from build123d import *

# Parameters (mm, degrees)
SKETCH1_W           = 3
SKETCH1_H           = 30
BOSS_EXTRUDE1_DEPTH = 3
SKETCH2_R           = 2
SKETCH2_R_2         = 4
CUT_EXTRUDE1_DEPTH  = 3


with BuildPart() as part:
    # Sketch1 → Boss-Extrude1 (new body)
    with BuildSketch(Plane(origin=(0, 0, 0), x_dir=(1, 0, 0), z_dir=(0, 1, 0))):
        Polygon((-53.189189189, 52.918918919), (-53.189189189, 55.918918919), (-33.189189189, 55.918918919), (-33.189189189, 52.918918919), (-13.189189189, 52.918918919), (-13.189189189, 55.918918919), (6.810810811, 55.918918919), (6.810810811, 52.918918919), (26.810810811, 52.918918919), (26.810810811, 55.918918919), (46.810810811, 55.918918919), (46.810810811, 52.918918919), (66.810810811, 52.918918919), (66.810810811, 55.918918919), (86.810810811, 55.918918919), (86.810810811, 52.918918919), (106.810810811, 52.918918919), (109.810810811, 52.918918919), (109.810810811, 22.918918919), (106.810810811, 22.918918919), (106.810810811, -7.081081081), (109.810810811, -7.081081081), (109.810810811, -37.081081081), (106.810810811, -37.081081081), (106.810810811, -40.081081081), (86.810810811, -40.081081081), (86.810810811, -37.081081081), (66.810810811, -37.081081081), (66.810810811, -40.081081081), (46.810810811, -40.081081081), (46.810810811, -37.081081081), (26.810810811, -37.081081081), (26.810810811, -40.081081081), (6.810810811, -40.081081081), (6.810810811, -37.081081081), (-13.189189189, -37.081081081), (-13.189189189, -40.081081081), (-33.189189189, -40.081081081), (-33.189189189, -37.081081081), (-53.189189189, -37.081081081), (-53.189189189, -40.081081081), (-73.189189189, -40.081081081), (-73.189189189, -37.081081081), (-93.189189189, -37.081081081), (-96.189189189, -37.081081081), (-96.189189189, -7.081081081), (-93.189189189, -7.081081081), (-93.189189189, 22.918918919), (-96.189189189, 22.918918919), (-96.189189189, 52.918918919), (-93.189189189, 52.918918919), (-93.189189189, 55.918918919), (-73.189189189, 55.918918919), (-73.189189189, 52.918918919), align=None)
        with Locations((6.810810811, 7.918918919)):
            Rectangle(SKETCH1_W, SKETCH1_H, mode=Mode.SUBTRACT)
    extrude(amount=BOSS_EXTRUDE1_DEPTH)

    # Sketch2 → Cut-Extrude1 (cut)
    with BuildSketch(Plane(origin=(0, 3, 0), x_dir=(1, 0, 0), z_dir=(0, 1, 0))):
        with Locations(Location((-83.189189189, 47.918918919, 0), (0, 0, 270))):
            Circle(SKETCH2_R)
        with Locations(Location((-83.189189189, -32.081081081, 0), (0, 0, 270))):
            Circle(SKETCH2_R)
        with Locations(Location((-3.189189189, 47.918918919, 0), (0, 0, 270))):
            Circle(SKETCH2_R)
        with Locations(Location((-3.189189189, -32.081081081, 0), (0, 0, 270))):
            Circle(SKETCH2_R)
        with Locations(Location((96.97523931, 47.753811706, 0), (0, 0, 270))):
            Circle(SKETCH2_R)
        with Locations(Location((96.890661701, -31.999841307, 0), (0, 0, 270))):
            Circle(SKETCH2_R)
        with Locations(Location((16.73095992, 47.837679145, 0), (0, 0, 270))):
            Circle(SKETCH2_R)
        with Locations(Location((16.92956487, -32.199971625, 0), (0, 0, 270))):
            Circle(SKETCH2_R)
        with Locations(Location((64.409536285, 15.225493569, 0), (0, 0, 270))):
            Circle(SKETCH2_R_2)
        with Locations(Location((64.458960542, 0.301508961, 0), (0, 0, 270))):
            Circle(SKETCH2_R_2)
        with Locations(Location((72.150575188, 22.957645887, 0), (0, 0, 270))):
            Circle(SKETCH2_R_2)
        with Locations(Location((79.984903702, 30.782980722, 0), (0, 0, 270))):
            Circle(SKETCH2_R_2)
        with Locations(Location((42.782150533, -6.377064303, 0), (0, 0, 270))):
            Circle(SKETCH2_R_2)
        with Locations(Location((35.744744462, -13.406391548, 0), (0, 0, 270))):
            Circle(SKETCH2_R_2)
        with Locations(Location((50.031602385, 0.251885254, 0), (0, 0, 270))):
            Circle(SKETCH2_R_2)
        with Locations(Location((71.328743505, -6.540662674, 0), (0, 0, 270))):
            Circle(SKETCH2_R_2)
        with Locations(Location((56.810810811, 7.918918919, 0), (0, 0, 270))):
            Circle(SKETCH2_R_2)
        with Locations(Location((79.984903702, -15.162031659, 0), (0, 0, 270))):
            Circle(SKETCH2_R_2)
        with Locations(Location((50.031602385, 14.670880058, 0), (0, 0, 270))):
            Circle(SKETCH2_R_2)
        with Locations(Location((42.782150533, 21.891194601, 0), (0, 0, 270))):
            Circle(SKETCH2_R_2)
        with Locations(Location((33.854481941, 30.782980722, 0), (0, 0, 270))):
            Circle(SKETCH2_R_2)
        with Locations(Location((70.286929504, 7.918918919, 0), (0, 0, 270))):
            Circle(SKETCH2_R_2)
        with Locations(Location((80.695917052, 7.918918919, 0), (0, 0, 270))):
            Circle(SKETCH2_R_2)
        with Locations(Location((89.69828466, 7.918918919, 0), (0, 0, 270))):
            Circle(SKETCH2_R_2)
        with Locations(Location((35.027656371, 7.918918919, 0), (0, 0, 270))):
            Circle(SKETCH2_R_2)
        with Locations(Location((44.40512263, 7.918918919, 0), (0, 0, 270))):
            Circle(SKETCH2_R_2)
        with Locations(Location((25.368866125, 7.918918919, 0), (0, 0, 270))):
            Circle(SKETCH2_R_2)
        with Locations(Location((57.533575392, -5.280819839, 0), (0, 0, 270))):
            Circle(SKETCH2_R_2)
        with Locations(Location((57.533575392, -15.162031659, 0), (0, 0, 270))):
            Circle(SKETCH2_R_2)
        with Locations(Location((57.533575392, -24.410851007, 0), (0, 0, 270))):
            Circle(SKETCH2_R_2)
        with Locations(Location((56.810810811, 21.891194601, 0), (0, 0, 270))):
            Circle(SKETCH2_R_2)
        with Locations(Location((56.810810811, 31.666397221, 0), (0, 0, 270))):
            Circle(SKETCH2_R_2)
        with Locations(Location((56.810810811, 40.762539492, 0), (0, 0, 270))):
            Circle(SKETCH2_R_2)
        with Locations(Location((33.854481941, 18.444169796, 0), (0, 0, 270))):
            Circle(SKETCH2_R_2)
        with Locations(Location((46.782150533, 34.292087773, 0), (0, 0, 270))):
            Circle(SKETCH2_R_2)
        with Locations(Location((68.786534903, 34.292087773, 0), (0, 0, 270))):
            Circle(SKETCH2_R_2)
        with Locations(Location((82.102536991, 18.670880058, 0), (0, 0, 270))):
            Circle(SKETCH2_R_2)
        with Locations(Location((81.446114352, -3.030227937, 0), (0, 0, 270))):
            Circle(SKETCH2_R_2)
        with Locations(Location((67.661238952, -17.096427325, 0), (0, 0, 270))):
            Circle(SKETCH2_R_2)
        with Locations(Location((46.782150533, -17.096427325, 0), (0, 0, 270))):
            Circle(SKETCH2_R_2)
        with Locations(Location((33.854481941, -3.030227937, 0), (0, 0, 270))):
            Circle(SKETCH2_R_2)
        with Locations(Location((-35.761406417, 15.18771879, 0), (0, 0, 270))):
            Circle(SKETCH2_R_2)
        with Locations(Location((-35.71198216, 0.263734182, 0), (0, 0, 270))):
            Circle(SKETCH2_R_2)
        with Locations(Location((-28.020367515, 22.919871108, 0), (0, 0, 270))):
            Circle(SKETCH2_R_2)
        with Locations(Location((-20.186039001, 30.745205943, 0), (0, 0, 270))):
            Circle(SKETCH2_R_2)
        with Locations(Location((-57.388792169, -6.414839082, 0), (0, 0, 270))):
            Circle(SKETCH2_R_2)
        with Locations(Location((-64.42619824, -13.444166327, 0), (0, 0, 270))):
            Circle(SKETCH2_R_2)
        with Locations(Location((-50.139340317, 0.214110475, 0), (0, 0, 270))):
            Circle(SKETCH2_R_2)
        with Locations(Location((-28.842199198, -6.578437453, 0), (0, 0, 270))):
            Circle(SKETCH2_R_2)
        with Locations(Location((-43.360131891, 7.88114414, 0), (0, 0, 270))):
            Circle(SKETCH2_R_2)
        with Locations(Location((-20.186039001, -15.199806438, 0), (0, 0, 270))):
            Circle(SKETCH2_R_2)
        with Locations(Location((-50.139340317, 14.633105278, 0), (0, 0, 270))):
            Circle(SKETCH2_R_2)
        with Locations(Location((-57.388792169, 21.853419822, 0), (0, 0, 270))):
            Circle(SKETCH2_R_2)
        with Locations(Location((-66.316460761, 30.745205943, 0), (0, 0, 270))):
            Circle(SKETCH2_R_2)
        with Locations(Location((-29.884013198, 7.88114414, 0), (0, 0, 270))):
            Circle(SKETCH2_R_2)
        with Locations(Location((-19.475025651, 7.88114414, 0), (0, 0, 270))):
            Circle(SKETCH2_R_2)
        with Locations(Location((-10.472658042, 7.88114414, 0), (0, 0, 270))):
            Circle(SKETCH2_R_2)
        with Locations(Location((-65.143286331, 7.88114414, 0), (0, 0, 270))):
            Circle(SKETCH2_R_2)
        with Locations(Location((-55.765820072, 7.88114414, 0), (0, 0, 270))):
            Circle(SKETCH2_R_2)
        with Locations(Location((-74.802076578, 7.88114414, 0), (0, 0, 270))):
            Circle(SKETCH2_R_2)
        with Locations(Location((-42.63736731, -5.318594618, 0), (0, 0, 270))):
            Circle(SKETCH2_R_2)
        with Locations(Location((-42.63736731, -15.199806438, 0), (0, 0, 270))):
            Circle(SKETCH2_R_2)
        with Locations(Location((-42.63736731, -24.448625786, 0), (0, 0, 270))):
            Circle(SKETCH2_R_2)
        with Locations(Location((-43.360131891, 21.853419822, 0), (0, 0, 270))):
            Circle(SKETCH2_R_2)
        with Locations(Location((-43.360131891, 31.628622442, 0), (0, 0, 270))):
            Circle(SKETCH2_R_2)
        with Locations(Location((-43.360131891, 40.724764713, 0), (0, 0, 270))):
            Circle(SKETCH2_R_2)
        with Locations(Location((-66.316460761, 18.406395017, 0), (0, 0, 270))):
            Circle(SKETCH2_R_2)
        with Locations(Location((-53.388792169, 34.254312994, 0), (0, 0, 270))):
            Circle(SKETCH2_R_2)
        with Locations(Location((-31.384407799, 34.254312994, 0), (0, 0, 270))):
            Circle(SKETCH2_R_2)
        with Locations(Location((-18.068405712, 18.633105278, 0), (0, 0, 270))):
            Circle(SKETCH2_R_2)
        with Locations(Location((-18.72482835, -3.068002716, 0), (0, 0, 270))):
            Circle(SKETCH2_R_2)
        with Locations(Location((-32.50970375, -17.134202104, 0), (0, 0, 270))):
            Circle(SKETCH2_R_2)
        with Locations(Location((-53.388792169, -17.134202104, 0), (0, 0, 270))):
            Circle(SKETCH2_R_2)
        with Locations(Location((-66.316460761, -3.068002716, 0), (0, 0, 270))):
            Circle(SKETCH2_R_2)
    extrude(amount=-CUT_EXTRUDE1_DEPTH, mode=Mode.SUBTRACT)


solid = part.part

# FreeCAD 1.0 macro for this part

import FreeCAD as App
import Part
import Sketcher


def add_polygon(sketch, points):
    """Adds a closed chain of lines whose ends are joined by coincident constraints."""
    first, n = sketch.GeometryCount, len(points)
    for a, b in zip(points, points[1:] + points[:1]):
        sketch.addGeometry(Part.LineSegment(App.Vector(*a, 0), App.Vector(*b, 0)), False)
    for i in range(n):
        sketch.addConstraint(Sketcher.Constraint("Coincident", first + i, 2, first + (i + 1) % n, 1))

doc = App.newDocument("Part")
body = doc.addObject("PartDesign::Body", "Body")

# Sketch on XZ plane
sketch1 = body.newObject("Sketcher::SketchObject", "Sketch")
sketch1.AttachmentSupport = (doc.getObject("XZ_Plane"), [""])
sketch1.MapMode = "FlatFace"
add_polygon(sketch1, [(-53.2, -55.9), (-53.2, -52.9), (-73.2, -52.9), (-73.2, -55.9), (-93.2, -55.9), (-93.2, -52.9), (-96.2, -52.9), (-96.2, -22.9), (-93.2, -22.9), (-93.2, 7.1), (-96.2, 7.1), (-96.2, 37.1), (-73.2, 37.1), (-73.2, 40.1), (-53.2, 40.1), (-53.2, 37.1), (-33.2, 37.1), (-33.2, 40.1), (-13.2, 40.1), (-13.2, 37.1), (6.8, 37.1), (6.8, 40.1), (26.8, 40.1), (26.8, 37.1), (46.8, 37.1), (46.8, 40.1), (66.8, 40.1), (66.8, 37.1), (86.8, 37.1), (86.8, 40.1), (106.8, 40.1), (106.8, 37.1), (109.8, 37.1), (109.8, 7.1), (106.8, 7.1), (106.8, -22.9), (109.8, -22.9), (109.8, -52.9), (86.8, -52.9), (86.8, -55.9), (66.8, -55.9), (66.8, -52.9), (46.8, -52.9), (46.8, -55.9), (26.8, -55.9), (26.8, -52.9), (6.8, -52.9), (6.8, -55.9), (-13.2, -55.9), (-13.2, -52.9), (-33.2, -52.9), (-33.2, -55.9)])  # lines 0-51
add_polygon(sketch1, [(5.3, 7.1), (5.3, -22.9), (8.3, -22.9), (8.3, 7.1)])  # lines 52-55
sketch1.addConstraint(Sketcher.Constraint("Vertical", 0))
sketch1.addConstraint(Sketcher.Constraint("Horizontal", 1))
sketch1.addConstraint(Sketcher.Constraint("Vertical", 2))
sketch1.addConstraint(Sketcher.Constraint("Horizontal", 3))
sketch1.addConstraint(Sketcher.Constraint("Vertical", 4))
sketch1.addConstraint(Sketcher.Constraint("Horizontal", 5))
sketch1.addConstraint(Sketcher.Constraint("Vertical", 6))
sketch1.addConstraint(Sketcher.Constraint("Horizontal", 7))
sketch1.addConstraint(Sketcher.Constraint("Vertical", 8))
sketch1.addConstraint(Sketcher.Constraint("Horizontal", 9))
sketch1.addConstraint(Sketcher.Constraint("Vertical", 10))
sketch1.addConstraint(Sketcher.Constraint("Horizontal", 11))
sketch1.addConstraint(Sketcher.Constraint("Vertical", 12))
sketch1.addConstraint(Sketcher.Constraint("Horizontal", 13))
sketch1.addConstraint(Sketcher.Constraint("Vertical", 14))
sketch1.addConstraint(Sketcher.Constraint("Horizontal", 15))
sketch1.addConstraint(Sketcher.Constraint("Vertical", 16))
sketch1.addConstraint(Sketcher.Constraint("Horizontal", 17))
sketch1.addConstraint(Sketcher.Constraint("Vertical", 18))
sketch1.addConstraint(Sketcher.Constraint("Horizontal", 19))
sketch1.addConstraint(Sketcher.Constraint("Vertical", 20))
sketch1.addConstraint(Sketcher.Constraint("Horizontal", 21))
sketch1.addConstraint(Sketcher.Constraint("Vertical", 22))
sketch1.addConstraint(Sketcher.Constraint("Horizontal", 23))
sketch1.addConstraint(Sketcher.Constraint("Vertical", 24))
sketch1.addConstraint(Sketcher.Constraint("Horizontal", 25))
sketch1.addConstraint(Sketcher.Constraint("Vertical", 26))
sketch1.addConstraint(Sketcher.Constraint("Horizontal", 27))
sketch1.addConstraint(Sketcher.Constraint("Vertical", 28))
sketch1.addConstraint(Sketcher.Constraint("Horizontal", 29))
sketch1.addConstraint(Sketcher.Constraint("Vertical", 30))
sketch1.addConstraint(Sketcher.Constraint("Horizontal", 31))
sketch1.addConstraint(Sketcher.Constraint("Vertical", 32))
sketch1.addConstraint(Sketcher.Constraint("Horizontal", 33))
sketch1.addConstraint(Sketcher.Constraint("Vertical", 34))
sketch1.addConstraint(Sketcher.Constraint("Horizontal", 35))
sketch1.addConstraint(Sketcher.Constraint("Vertical", 36))
sketch1.addConstraint(Sketcher.Constraint("Horizontal", 37))
sketch1.addConstraint(Sketcher.Constraint("Vertical", 38))
sketch1.addConstraint(Sketcher.Constraint("Horizontal", 39))
sketch1.addConstraint(Sketcher.Constraint("Vertical", 40))
sketch1.addConstraint(Sketcher.Constraint("Horizontal", 41))
sketch1.addConstraint(Sketcher.Constraint("Vertical", 42))
sketch1.addConstraint(Sketcher.Constraint("Horizontal", 43))
sketch1.addConstraint(Sketcher.Constraint("Vertical", 44))
sketch1.addConstraint(Sketcher.Constraint("Horizontal", 45))
sketch1.addConstraint(Sketcher.Constraint("Vertical", 46))
sketch1.addConstraint(Sketcher.Constraint("Horizontal", 47))
sketch1.addConstraint(Sketcher.Constraint("Vertical", 48))
sketch1.addConstraint(Sketcher.Constraint("Horizontal", 49))
sketch1.addConstraint(Sketcher.Constraint("Vertical", 50))
sketch1.addConstraint(Sketcher.Constraint("Horizontal", 51))
sketch1.addConstraint(Sketcher.Constraint("Vertical", 52))
sketch1.addConstraint(Sketcher.Constraint("Horizontal", 53))
sketch1.addConstraint(Sketcher.Constraint("Vertical", 54))
sketch1.addConstraint(Sketcher.Constraint("Horizontal", 55))
sketch1.addConstraint(Sketcher.Constraint("Horizontal", 1, 2, 4, 2))
sketch1.addConstraint(Sketcher.Constraint("Horizontal", 11, 2, 14, 2))
sketch1.addConstraint(Sketcher.Constraint("Horizontal", 13, 2, 16, 2))
sketch1.addConstraint(Sketcher.Constraint("Horizontal", 15, 2, 18, 2))
sketch1.addConstraint(Sketcher.Constraint("Horizontal", 17, 2, 20, 2))
sketch1.addConstraint(Sketcher.Constraint("Horizontal", 19, 2, 22, 2))
sketch1.addConstraint(Sketcher.Constraint("Horizontal", 21, 2, 24, 2))
sketch1.addConstraint(Sketcher.Constraint("Horizontal", 23, 2, 26, 2))
sketch1.addConstraint(Sketcher.Constraint("Horizontal", 25, 2, 28, 2))
sketch1.addConstraint(Sketcher.Constraint("Horizontal", 27, 2, 30, 2))
sketch1.addConstraint(Sketcher.Constraint("Horizontal", 9, 2, 32, 2))
sketch1.addConstraint(Sketcher.Constraint("Horizontal", 7, 2, 34, 2))
sketch1.addConstraint(Sketcher.Constraint("Horizontal", 5, 2, 36, 2))
sketch1.addConstraint(Sketcher.Constraint("Horizontal", 3, 2, 38, 2))
sketch1.addConstraint(Sketcher.Constraint("Horizontal", 37, 2, 40, 2))
sketch1.addConstraint(Sketcher.Constraint("Horizontal", 39, 2, 42, 2))
sketch1.addConstraint(Sketcher.Constraint("Horizontal", 41, 2, 44, 2))
sketch1.addConstraint(Sketcher.Constraint("Horizontal", 43, 2, 46, 2))
sketch1.addConstraint(Sketcher.Constraint("Horizontal", 45, 2, 48, 2))
sketch1.addConstraint(Sketcher.Constraint("Horizontal", 47, 2, 50, 2))
sketch1.addConstraint(Sketcher.Constraint("Horizontal", 35, 2, 52, 2))
sketch1.addConstraint(Sketcher.Constraint("Horizontal", 33, 2, 54, 2))
sketch1.addConstraint(Sketcher.Constraint("Vertical", 4, 2, 7, 2))
sketch1.addConstraint(Sketcher.Constraint("Vertical", 6, 2, 9, 2))
sketch1.addConstraint(Sketcher.Constraint("Vertical", 2, 2, 11, 2))
sketch1.addConstraint(Sketcher.Constraint("Vertical", 0, 2, 13, 2))
sketch1.addConstraint(Sketcher.Constraint("Vertical", 30, 2, 33, 2))
sketch1.addConstraint(Sketcher.Constraint("Vertical", 32, 2, 35, 2))
sketch1.addConstraint(Sketcher.Constraint("Vertical", 28, 2, 37, 2))
sketch1.addConstraint(Sketcher.Constraint("Vertical", 26, 2, 39, 2))
sketch1.addConstraint(Sketcher.Constraint("Vertical", 24, 2, 41, 2))
sketch1.addConstraint(Sketcher.Constraint("Vertical", 22, 2, 43, 2))
sketch1.addConstraint(Sketcher.Constraint("Vertical", 20, 2, 45, 2))
sketch1.addConstraint(Sketcher.Constraint("Vertical", 18, 2, 47, 2))
sketch1.addConstraint(Sketcher.Constraint("Vertical", 16, 2, 49, 2))
sketch1.addConstraint(Sketcher.Constraint("Equal", 1, 3))
sketch1.addConstraint(Sketcher.Constraint("Equal", 13, 15))
sketch1.addConstraint(Sketcher.Constraint("Equal", 15, 17))
sketch1.addConstraint(Sketcher.Constraint("Equal", 17, 19))
sketch1.addConstraint(Sketcher.Constraint("Equal", 19, 21))
sketch1.addConstraint(Sketcher.Constraint("Equal", 21, 23))
sketch1.addConstraint(Sketcher.Constraint("Equal", 23, 25))
sketch1.addConstraint(Sketcher.Constraint("Equal", 25, 27))
sketch1.addConstraint(Sketcher.Constraint("Equal", 27, 29))
sketch1.addConstraint(Sketcher.Constraint("Equal", 9, 31))
sketch1.addConstraint(Sketcher.Constraint("Equal", 35, 53))
sketch1.addConstraint(Sketcher.Constraint("Equal", 55, 0))
sketch1.addConstraint(Sketcher.Constraint("Equal", 6, 8))
sketch1.addConstraint(Sketcher.Constraint("Equal", 8, 10))
sketch1.addConstraint(Sketcher.Constraint("Equal", 4, 12))
sketch1.addConstraint(Sketcher.Constraint("DistanceX", 1, 2, 1, 1, 20.0))
sketch1.addConstraint(Sketcher.Constraint("DistanceX", 5, 2, 5, 1, 3.0))
sketch1.addConstraint(Sketcher.Constraint("DistanceY", 6, 1, 6, 2, 30.0))
sketch1.addConstraint(Sketcher.Constraint("DistanceX", 52, 2, 45, 2, 1.5))
sketch1.addConstraint(Sketcher.Constraint("DistanceX", 0, 2, -1, 1, 53.189189))
sketch1.addConstraint(Sketcher.Constraint("DistanceY", 0, 2, -1, 1, 52.918919))
pad1 = body.newObject("PartDesign::Pad", "Pad")
pad1.Profile = sketch1
pad1.Length = 3
pad1.Reversed = True

# Sketch on XZ plane
sketch2 = body.newObject("Sketcher::SketchObject", "Sketch001")
sketch2.AttachmentSupport = (doc.getObject("XZ_Plane"), [""])
sketch2.MapMode = "FlatFace"
sketch2.AttachmentOffset = App.Placement(App.Vector(0, 0, -3), App.Rotation())
sketch2.addGeometry(Part.Circle(App.Vector(-83.2, -47.9, 0), App.Vector(0, 0, 1), 2), False)
sketch2.addGeometry(Part.Circle(App.Vector(-83.2, 32.1, 0), App.Vector(0, 0, 1), 2), False)
sketch2.addGeometry(Part.Circle(App.Vector(-3.2, -47.9, 0), App.Vector(0, 0, 1), 2), False)
sketch2.addGeometry(Part.Circle(App.Vector(-3.2, 32.1, 0), App.Vector(0, 0, 1), 2), False)
sketch2.addGeometry(Part.Circle(App.Vector(97, -47.8, 0), App.Vector(0, 0, 1), 2), False)
sketch2.addGeometry(Part.Circle(App.Vector(96.9, 32, 0), App.Vector(0, 0, 1), 2), False)
sketch2.addGeometry(Part.Circle(App.Vector(16.7, -47.8, 0), App.Vector(0, 0, 1), 2), False)
sketch2.addGeometry(Part.Circle(App.Vector(16.9, 32.2, 0), App.Vector(0, 0, 1), 2), False)
sketch2.addGeometry(Part.Circle(App.Vector(64.4, -15.2, 0), App.Vector(0, 0, 1), 4), False)
sketch2.addGeometry(Part.Circle(App.Vector(64.5, -0.3, 0), App.Vector(0, 0, 1), 4), False)
sketch2.addGeometry(Part.Circle(App.Vector(72.2, -23, 0), App.Vector(0, 0, 1), 4), False)
sketch2.addGeometry(Part.Circle(App.Vector(80, -30.8, 0), App.Vector(0, 0, 1), 4), False)
sketch2.addGeometry(Part.Circle(App.Vector(42.8, 6.4, 0), App.Vector(0, 0, 1), 4), False)
sketch2.addGeometry(Part.Circle(App.Vector(35.7, 13.4, 0), App.Vector(0, 0, 1), 4), False)
sketch2.addGeometry(Part.Circle(App.Vector(50, -0.3, 0), App.Vector(0, 0, 1), 4), False)
sketch2.addGeometry(Part.Circle(App.Vector(71.3, 6.5, 0), App.Vector(0, 0, 1), 4), False)
sketch2.addGeometry(Part.Circle(App.Vector(56.8, -7.9, 0), App.Vector(0, 0, 1), 4), False)
sketch2.addGeometry(Part.Circle(App.Vector(80, 15.2, 0), App.Vector(0, 0, 1), 4), False)
sketch2.addGeometry(Part.Circle(App.Vector(50, -14.7, 0), App.Vector(0, 0, 1), 4), False)
sketch2.addGeometry(Part.Circle(App.Vector(42.8, -21.9, 0), App.Vector(0, 0, 1), 4), False)
sketch2.addGeometry(Part.Circle(App.Vector(33.9, -30.8, 0), App.Vector(0, 0, 1), 4), False)
sketch2.addGeometry(Part.Circle(App.Vector(70.3, -7.9, 0), App.Vector(0, 0, 1), 4), False)
sketch2.addGeometry(Part.Circle(App.Vector(80.7, -7.9, 0), App.Vector(0, 0, 1), 4), False)
sketch2.addGeometry(Part.Circle(App.Vector(89.7, -7.9, 0), App.Vector(0, 0, 1), 4), False)
sketch2.addGeometry(Part.Circle(App.Vector(35, -7.9, 0), App.Vector(0, 0, 1), 4), False)
sketch2.addGeometry(Part.Circle(App.Vector(44.4, -7.9, 0), App.Vector(0, 0, 1), 4), False)
sketch2.addGeometry(Part.Circle(App.Vector(25.4, -7.9, 0), App.Vector(0, 0, 1), 4), False)
sketch2.addGeometry(Part.Circle(App.Vector(57.5, 5.3, 0), App.Vector(0, 0, 1), 4), False)
sketch2.addGeometry(Part.Circle(App.Vector(57.5, 15.2, 0), App.Vector(0, 0, 1), 4), False)
sketch2.addGeometry(Part.Circle(App.Vector(57.5, 24.4, 0), App.Vector(0, 0, 1), 4), False)
sketch2.addGeometry(Part.Circle(App.Vector(56.8, -21.9, 0), App.Vector(0, 0, 1), 4), False)
sketch2.addGeometry(Part.Circle(App.Vector(56.8, -31.7, 0), App.Vector(0, 0, 1), 4), False)
sketch2.addGeometry(Part.Circle(App.Vector(56.8, -40.8, 0), App.Vector(0, 0, 1), 4), False)
sketch2.addGeometry(Part.Circle(App.Vector(33.9, -18.4, 0), App.Vector(0, 0, 1), 4), False)
sketch2.addGeometry(Part.Circle(App.Vector(46.8, -34.3, 0), App.Vector(0, 0, 1), 4), False)
sketch2.addGeometry(Part.Circle(App.Vector(68.8, -34.3, 0), App.Vector(0, 0, 1), 4), False)
sketch2.addGeometry(Part.Circle(App.Vector(82.1, -18.7, 0), App.Vector(0, 0, 1), 4), False)
sketch2.addGeometry(Part.Circle(App.Vector(81.4, 3, 0), App.Vector(0, 0, 1), 4), False)
sketch2.addGeometry(Part.Circle(App.Vector(67.7, 17.1, 0), App.Vector(0, 0, 1), 4), False)
sketch2.addGeometry(Part.Circle(App.Vector(46.8, 17.1, 0), App.Vector(0, 0, 1), 4), False)
sketch2.addGeometry(Part.Circle(App.Vector(33.9, 3, 0), App.Vector(0, 0, 1), 4), False)
sketch2.addGeometry(Part.Circle(App.Vector(-35.8, -15.2, 0), App.Vector(0, 0, 1), 4), False)
sketch2.addGeometry(Part.Circle(App.Vector(-35.7, -0.3, 0), App.Vector(0, 0, 1), 4), False)
sketch2.addGeometry(Part.Circle(App.Vector(-28, -22.9, 0), App.Vector(0, 0, 1), 4), False)
sketch2.addGeometry(Part.Circle(App.Vector(-20.2, -30.7, 0), App.Vector(0, 0, 1), 4), False)
sketch2.addGeometry(Part.Circle(App.Vector(-57.4, 6.4, 0), App.Vector(0, 0, 1), 4), False)
sketch2.addGeometry(Part.Circle(App.Vector(-64.4, 13.4, 0), App.Vector(0, 0, 1), 4), False)
sketch2.addGeometry(Part.Circle(App.Vector(-50.1, -0.2, 0), App.Vector(0, 0, 1), 4), False)
sketch2.addGeometry(Part.Circle(App.Vector(-28.8, 6.6, 0), App.Vector(0, 0, 1), 4), False)
sketch2.addGeometry(Part.Circle(App.Vector(-43.4, -7.9, 0), App.Vector(0, 0, 1), 4), False)
sketch2.addGeometry(Part.Circle(App.Vector(-20.2, 15.2, 0), App.Vector(0, 0, 1), 4), False)
sketch2.addGeometry(Part.Circle(App.Vector(-50.1, -14.6, 0), App.Vector(0, 0, 1), 4), False)
sketch2.addGeometry(Part.Circle(App.Vector(-57.4, -21.9, 0), App.Vector(0, 0, 1), 4), False)
sketch2.addGeometry(Part.Circle(App.Vector(-66.3, -30.7, 0), App.Vector(0, 0, 1), 4), False)
sketch2.addGeometry(Part.Circle(App.Vector(-29.9, -7.9, 0), App.Vector(0, 0, 1), 4), False)
sketch2.addGeometry(Part.Circle(App.Vector(-19.5, -7.9, 0), App.Vector(0, 0, 1), 4), False)
sketch2.addGeometry(Part.Circle(App.Vector(-10.5, -7.9, 0), App.Vector(0, 0, 1), 4), False)
sketch2.addGeometry(Part.Circle(App.Vector(-65.1, -7.9, 0), App.Vector(0, 0, 1), 4), False)
sketch2.addGeometry(Part.Circle(App.Vector(-55.8, -7.9, 0), App.Vector(0, 0, 1), 4), False)
sketch2.addGeometry(Part.Circle(App.Vector(-74.8, -7.9, 0), App.Vector(0, 0, 1), 4), False)
sketch2.addGeometry(Part.Circle(App.Vector(-42.6, 5.3, 0), App.Vector(0, 0, 1), 4), False)
sketch2.addGeometry(Part.Circle(App.Vector(-42.6, 15.2, 0), App.Vector(0, 0, 1), 4), False)
sketch2.addGeometry(Part.Circle(App.Vector(-42.6, 24.4, 0), App.Vector(0, 0, 1), 4), False)
sketch2.addGeometry(Part.Circle(App.Vector(-43.4, -21.9, 0), App.Vector(0, 0, 1), 4), False)
sketch2.addGeometry(Part.Circle(App.Vector(-43.4, -31.6, 0), App.Vector(0, 0, 1), 4), False)
sketch2.addGeometry(Part.Circle(App.Vector(-43.4, -40.7, 0), App.Vector(0, 0, 1), 4), False)
sketch2.addGeometry(Part.Circle(App.Vector(-66.3, -18.4, 0), App.Vector(0, 0, 1), 4), False)
sketch2.addGeometry(Part.Circle(App.Vector(-53.4, -34.3, 0), App.Vector(0, 0, 1), 4), False)
sketch2.addGeometry(Part.Circle(App.Vector(-31.4, -34.3, 0), App.Vector(0, 0, 1), 4), False)
sketch2.addGeometry(Part.Circle(App.Vector(-18.1, -18.6, 0), App.Vector(0, 0, 1), 4), False)
sketch2.addGeometry(Part.Circle(App.Vector(-18.7, 3.1, 0), App.Vector(0, 0, 1), 4), False)
sketch2.addGeometry(Part.Circle(App.Vector(-32.5, 17.1, 0), App.Vector(0, 0, 1), 4), False)
sketch2.addGeometry(Part.Circle(App.Vector(-53.4, 17.1, 0), App.Vector(0, 0, 1), 4), False)
sketch2.addGeometry(Part.Circle(App.Vector(-66.3, 3.1, 0), App.Vector(0, 0, 1), 4), False)
sketch2.addConstraint(Sketcher.Constraint("Equal", 0, 1))
sketch2.addConstraint(Sketcher.Constraint("Equal", 1, 2))
sketch2.addConstraint(Sketcher.Constraint("Equal", 2, 3))
sketch2.addConstraint(Sketcher.Constraint("Equal", 3, 4))
sketch2.addConstraint(Sketcher.Constraint("Equal", 4, 5))
sketch2.addConstraint(Sketcher.Constraint("Equal", 5, 6))
sketch2.addConstraint(Sketcher.Constraint("Equal", 6, 7))
sketch2.addConstraint(Sketcher.Constraint("Equal", 8, 9))
sketch2.addConstraint(Sketcher.Constraint("Equal", 9, 10))
sketch2.addConstraint(Sketcher.Constraint("Equal", 10, 11))
sketch2.addConstraint(Sketcher.Constraint("Equal", 11, 12))
sketch2.addConstraint(Sketcher.Constraint("Equal", 12, 13))
sketch2.addConstraint(Sketcher.Constraint("Equal", 13, 14))
sketch2.addConstraint(Sketcher.Constraint("Equal", 14, 15))
sketch2.addConstraint(Sketcher.Constraint("Equal", 15, 16))
sketch2.addConstraint(Sketcher.Constraint("Equal", 16, 17))
sketch2.addConstraint(Sketcher.Constraint("Equal", 17, 18))
sketch2.addConstraint(Sketcher.Constraint("Equal", 18, 19))
sketch2.addConstraint(Sketcher.Constraint("Equal", 19, 20))
sketch2.addConstraint(Sketcher.Constraint("Equal", 20, 21))
sketch2.addConstraint(Sketcher.Constraint("Equal", 21, 22))
sketch2.addConstraint(Sketcher.Constraint("Equal", 22, 23))
sketch2.addConstraint(Sketcher.Constraint("Equal", 23, 24))
sketch2.addConstraint(Sketcher.Constraint("Equal", 24, 25))
sketch2.addConstraint(Sketcher.Constraint("Equal", 25, 26))
sketch2.addConstraint(Sketcher.Constraint("Equal", 26, 27))
sketch2.addConstraint(Sketcher.Constraint("Equal", 27, 28))
sketch2.addConstraint(Sketcher.Constraint("Equal", 28, 29))
sketch2.addConstraint(Sketcher.Constraint("Equal", 29, 30))
sketch2.addConstraint(Sketcher.Constraint("Equal", 30, 31))
sketch2.addConstraint(Sketcher.Constraint("Equal", 31, 32))
sketch2.addConstraint(Sketcher.Constraint("Equal", 32, 33))
sketch2.addConstraint(Sketcher.Constraint("Equal", 33, 34))
sketch2.addConstraint(Sketcher.Constraint("Equal", 34, 35))
sketch2.addConstraint(Sketcher.Constraint("Equal", 35, 36))
sketch2.addConstraint(Sketcher.Constraint("Equal", 36, 37))
sketch2.addConstraint(Sketcher.Constraint("Equal", 37, 38))
sketch2.addConstraint(Sketcher.Constraint("Equal", 38, 39))
sketch2.addConstraint(Sketcher.Constraint("Equal", 39, 40))
sketch2.addConstraint(Sketcher.Constraint("Equal", 40, 41))
sketch2.addConstraint(Sketcher.Constraint("Equal", 41, 42))
sketch2.addConstraint(Sketcher.Constraint("Equal", 42, 43))
sketch2.addConstraint(Sketcher.Constraint("Equal", 43, 44))
sketch2.addConstraint(Sketcher.Constraint("Equal", 44, 45))
sketch2.addConstraint(Sketcher.Constraint("Equal", 45, 46))
sketch2.addConstraint(Sketcher.Constraint("Equal", 46, 47))
sketch2.addConstraint(Sketcher.Constraint("Equal", 47, 48))
sketch2.addConstraint(Sketcher.Constraint("Equal", 48, 49))
sketch2.addConstraint(Sketcher.Constraint("Equal", 49, 50))
sketch2.addConstraint(Sketcher.Constraint("Equal", 50, 51))
sketch2.addConstraint(Sketcher.Constraint("Equal", 51, 52))
sketch2.addConstraint(Sketcher.Constraint("Equal", 52, 53))
sketch2.addConstraint(Sketcher.Constraint("Equal", 53, 54))
sketch2.addConstraint(Sketcher.Constraint("Equal", 54, 55))
sketch2.addConstraint(Sketcher.Constraint("Equal", 55, 56))
sketch2.addConstraint(Sketcher.Constraint("Equal", 56, 57))
sketch2.addConstraint(Sketcher.Constraint("Equal", 57, 58))
sketch2.addConstraint(Sketcher.Constraint("Equal", 58, 59))
sketch2.addConstraint(Sketcher.Constraint("Equal", 59, 60))
sketch2.addConstraint(Sketcher.Constraint("Equal", 60, 61))
sketch2.addConstraint(Sketcher.Constraint("Equal", 61, 62))
sketch2.addConstraint(Sketcher.Constraint("Equal", 62, 63))
sketch2.addConstraint(Sketcher.Constraint("Equal", 63, 64))
sketch2.addConstraint(Sketcher.Constraint("Equal", 64, 65))
sketch2.addConstraint(Sketcher.Constraint("Equal", 65, 66))
sketch2.addConstraint(Sketcher.Constraint("Equal", 66, 67))
sketch2.addConstraint(Sketcher.Constraint("Equal", 67, 68))
sketch2.addConstraint(Sketcher.Constraint("Equal", 68, 69))
sketch2.addConstraint(Sketcher.Constraint("Equal", 69, 70))
sketch2.addConstraint(Sketcher.Constraint("Equal", 70, 71))
sketch2.addConstraint(Sketcher.Constraint("Equal", 71, 72))
sketch2.addConstraint(Sketcher.Constraint("Equal", 72, 73))
sketch2.addConstraint(Sketcher.Constraint("Horizontal", 0, 3, 2, 3))
sketch2.addConstraint(Sketcher.Constraint("Horizontal", 1, 3, 3, 3))
sketch2.addConstraint(Sketcher.Constraint("Horizontal", 11, 3, 20, 3))
sketch2.addConstraint(Sketcher.Constraint("Horizontal", 16, 3, 21, 3))
sketch2.addConstraint(Sketcher.Constraint("Horizontal", 21, 3, 22, 3))
sketch2.addConstraint(Sketcher.Constraint("Horizontal", 22, 3, 23, 3))
sketch2.addConstraint(Sketcher.Constraint("Horizontal", 23, 3, 24, 3))
sketch2.addConstraint(Sketcher.Constraint("Horizontal", 24, 3, 25, 3))
sketch2.addConstraint(Sketcher.Constraint("Horizontal", 25, 3, 26, 3))
sketch2.addConstraint(Sketcher.Constraint("Horizontal", 17, 3, 28, 3))
sketch2.addConstraint(Sketcher.Constraint("Horizontal", 19, 3, 30, 3))
sketch2.addConstraint(Sketcher.Constraint("Horizontal", 34, 3, 35, 3))
sketch2.addConstraint(Sketcher.Constraint("Horizontal", 38, 3, 39, 3))
sketch2.addConstraint(Sketcher.Constraint("Horizontal", 37, 3, 40, 3))
sketch2.addConstraint(Sketcher.Constraint("Horizontal", 44, 3, 53, 3))
sketch2.addConstraint(Sketcher.Constraint("Horizontal", 49, 3, 54, 3))
sketch2.addConstraint(Sketcher.Constraint("Horizontal", 54, 3, 55, 3))
sketch2.addConstraint(Sketcher.Constraint("Horizontal", 55, 3, 56, 3))
sketch2.addConstraint(Sketcher.Constraint("Horizontal", 56, 3, 57, 3))
sketch2.addConstraint(Sketcher.Constraint("Horizontal", 57, 3, 58, 3))
sketch2.addConstraint(Sketcher.Constraint("Horizontal", 58, 3, 59, 3))
sketch2.addConstraint(Sketcher.Constraint("Horizontal", 50, 3, 61, 3))
sketch2.addConstraint(Sketcher.Constraint("Horizontal", 52, 3, 63, 3))
sketch2.addConstraint(Sketcher.Constraint("Horizontal", 67, 3, 68, 3))
sketch2.addConstraint(Sketcher.Constraint("Horizontal", 71, 3, 72, 3))
sketch2.addConstraint(Sketcher.Constraint("Horizontal", 70, 3, 73, 3))
sketch2.addConstraint(Sketcher.Constraint("Vertical", 0, 3, 1, 3))
sketch2.addConstraint(Sketcher.Constraint("Vertical", 2, 3, 3, 3))
sketch2.addConstraint(Sketcher.Constraint("Vertical", 11, 3, 17, 3))
sketch2.addConstraint(Sketcher.Constraint("Vertical", 14, 3, 18, 3))
sketch2.addConstraint(Sketcher.Constraint("Vertical", 12, 3, 19, 3))
sketch2.addConstraint(Sketcher.Constraint("Vertical", 27, 3, 28, 3))
sketch2.addConstraint(Sketcher.Constraint("Vertical", 28, 3, 29, 3))
sketch2.addConstraint(Sketcher.Constraint("Vertical", 16, 3, 30, 3))
sketch2.addConstraint(Sketcher.Constraint("Vertical", 30, 3, 31, 3))
sketch2.addConstraint(Sketcher.Constraint("Vertical", 31, 3, 32, 3))
sketch2.addConstraint(Sketcher.Constraint("Vertical", 20, 3, 33, 3))
sketch2.addConstraint(Sketcher.Constraint("Vertical", 34, 3, 39, 3))
sketch2.addConstraint(Sketcher.Constraint("Vertical", 33, 3, 40, 3))
sketch2.addConstraint(Sketcher.Constraint("Vertical", 44, 3, 50, 3))
sketch2.addConstraint(Sketcher.Constraint("Vertical", 47, 3, 51, 3))
sketch2.addConstraint(Sketcher.Constraint("Vertical", 45, 3, 52, 3))
sketch2.addConstraint(Sketcher.Constraint("Vertical", 60, 3, 61, 3))
sketch2.addConstraint(Sketcher.Constraint("Vertical", 61, 3, 62, 3))
sketch2.addConstraint(Sketcher.Constraint("Vertical", 49, 3, 63, 3))
sketch2.addConstraint(Sketcher.Constraint("Vertical", 63, 3, 64, 3))
sketch2.addConstraint(Sketcher.Constraint("Vertical", 64, 3, 65, 3))
sketch2.addConstraint(Sketcher.Constraint("Vertical", 53, 3, 66, 3))
sketch2.addConstraint(Sketcher.Constraint("Vertical", 67, 3, 72, 3))
sketch2.addConstraint(Sketcher.Constraint("Vertical", 66, 3, 73, 3))
sketch2.addConstraint(Sketcher.Constraint("Diameter", 0, 4.0))
sketch2.addConstraint(Sketcher.Constraint("Diameter", 8, 8.0))
sketch2.addConstraint(Sketcher.Constraint("DistanceX", 46, 3, -1, 1, 64.426198))
sketch2.addConstraint(Sketcher.Constraint("DistanceX", 48, 3, -1, 1, 28.842199))
sketch2.addConstraint(Sketcher.Constraint("DistanceX", 0, 3, -1, 1, 83.189189))
sketch2.addConstraint(Sketcher.Constraint("DistanceY", 0, 3, -1, 1, 47.918919))
sketch2.addConstraint(Sketcher.Constraint("DistanceY", -1, 1, 1, 3, 32.081081))
sketch2.addConstraint(Sketcher.Constraint("DistanceX", 2, 3, -1, 1, 3.189189))
sketch2.addConstraint(Sketcher.Constraint("DistanceX", -1, 1, 4, 3, 96.975239))
sketch2.addConstraint(Sketcher.Constraint("DistanceY", 4, 3, -1, 1, 47.753812))
sketch2.addConstraint(Sketcher.Constraint("DistanceX", -1, 1, 5, 3, 96.890662))
sketch2.addConstraint(Sketcher.Constraint("DistanceY", -1, 1, 5, 3, 31.999841))
sketch2.addConstraint(Sketcher.Constraint("DistanceX", -1, 1, 6, 3, 16.73096))
sketch2.addConstraint(Sketcher.Constraint("DistanceY", 6, 3, -1, 1, 47.837679))
sketch2.addConstraint(Sketcher.Constraint("DistanceY", -1, 1, 7, 3, 32.199972))
sketch2.addConstraint(Sketcher.Constraint("DistanceX", -1, 1, 9, 3, 64.458961))
sketch2.addConstraint(Sketcher.Constraint("DistanceY", 9, 3, -1, 1, 0.301509))
sketch2.addConstraint(Sketcher.Constraint("DistanceY", 11, 3, -1, 1, 30.782981))
sketch2.addConstraint(Sketcher.Constraint("DistanceX", -1, 1, 12, 3, 42.782151))
sketch2.addConstraint(Sketcher.Constraint("DistanceY", -1, 1, 13, 3, 13.406392))
sketch2.addConstraint(Sketcher.Constraint("DistanceX", -1, 1, 16, 3, 56.810811))
sketch2.addConstraint(Sketcher.Constraint("DistanceY", 16, 3, -1, 1, 7.918919))
sketch2.addConstraint(Sketcher.Constraint("DistanceY", -1, 1, 17, 3, 15.162032))
sketch2.addConstraint(Sketcher.Constraint("DistanceY", 18, 3, -1, 1, 14.67088))
sketch2.addConstraint(Sketcher.Constraint("DistanceX", -1, 1, 20, 3, 33.854482))
sketch2.addConstraint(Sketcher.Constraint("DistanceX", -1, 1, 21, 3, 70.28693))
sketch2.addConstraint(Sketcher.Constraint("DistanceY", -1, 1, 27, 3, 5.28082))
sketch2.addConstraint(Sketcher.Constraint("DistanceY", -1, 1, 29, 3, 24.410851))
sketch2.addConstraint(Sketcher.Constraint("DistanceY", 32, 3, -1, 1, 40.762539))
sketch2.addConstraint(Sketcher.Constraint("DistanceY", 33, 3, -1, 1, 18.44417))
sketch2.addConstraint(Sketcher.Constraint("DistanceX", -1, 1, 34, 3, 46.782151))
sketch2.addConstraint(Sketcher.Constraint("DistanceY", 36, 3, -1, 1, 18.67088))
sketch2.addConstraint(Sketcher.Constraint("DistanceX", -1, 1, 38, 3, 67.661239))
sketch2.addConstraint(Sketcher.Constraint("DistanceY", 41, 3, -1, 1, 15.187719))
sketch2.addConstraint(Sketcher.Constraint("DistanceY", 43, 3, -1, 1, 22.919871))
sketch2.addConstraint(Sketcher.Constraint("DistanceX", 44, 3, -1, 1, 20.186039))
sketch2.addConstraint(Sketcher.Constraint("DistanceY", -1, 1, 45, 3, 6.414839))
sketch2.addConstraint(Sketcher.Constraint("DistanceX", 47, 3, -1, 1, 50.13934))
sketch2.addConstraint(Sketcher.Constraint("DistanceY", 47, 3, -1, 1, 0.21411))
sketch2.addConstraint(Sketcher.Constraint("DistanceX", 49, 3, -1, 1, 43.360132))
sketch2.addConstraint(Sketcher.Constraint("DistanceY", 52, 3, -1, 1, 21.85342))
sketch2.addConstraint(Sketcher.Constraint("DistanceX", 53, 3, -1, 1, 66.316461))
sketch2.addConstraint(Sketcher.Constraint("DistanceX", 56, 3, -1, 1, 10.472658))
sketch2.addConstraint(Sketcher.Constraint("DistanceX", 58, 3, -1, 1, 55.76582))
sketch2.addConstraint(Sketcher.Constraint("DistanceX", 70, 3, -1, 1, 18.724828))
sketch2.addConstraint(Sketcher.Constraint("DistanceX", -1, 1, 7, 3, 16.929565))
sketch2.addConstraint(Sketcher.Constraint("DistanceX", -1, 1, 8, 3, 64.409536))
sketch2.addConstraint(Sketcher.Constraint("DistanceY", 8, 3, -1, 1, 15.225494))
sketch2.addConstraint(Sketcher.Constraint("DistanceX", -1, 1, 10, 3, 72.150575))
sketch2.addConstraint(Sketcher.Constraint("DistanceY", 10, 3, -1, 1, 22.957646))
sketch2.addConstraint(Sketcher.Constraint("DistanceX", -1, 1, 11, 3, 79.984904))
sketch2.addConstraint(Sketcher.Constraint("DistanceY", -1, 1, 12, 3, 6.377064))
sketch2.addConstraint(Sketcher.Constraint("DistanceX", -1, 1, 13, 3, 35.744744))
sketch2.addConstraint(Sketcher.Constraint("DistanceX", -1, 1, 14, 3, 50.031602))
sketch2.addConstraint(Sketcher.Constraint("DistanceY", 14, 3, -1, 1, 0.251885))
sketch2.addConstraint(Sketcher.Constraint("DistanceX", -1, 1, 15, 3, 71.328744))
sketch2.addConstraint(Sketcher.Constraint("DistanceY", -1, 1, 15, 3, 6.540663))
sketch2.addConstraint(Sketcher.Constraint("DistanceY", 19, 3, -1, 1, 21.891195))
sketch2.addConstraint(Sketcher.Constraint("DistanceX", -1, 1, 22, 3, 80.695917))
sketch2.addConstraint(Sketcher.Constraint("DistanceX", -1, 1, 23, 3, 89.698285))
sketch2.addConstraint(Sketcher.Constraint("DistanceX", -1, 1, 24, 3, 35.027656))
sketch2.addConstraint(Sketcher.Constraint("DistanceX", -1, 1, 25, 3, 44.405123))
sketch2.addConstraint(Sketcher.Constraint("DistanceX", -1, 1, 26, 3, 25.368866))
sketch2.addConstraint(Sketcher.Constraint("DistanceX", -1, 1, 27, 3, 57.533575))
sketch2.addConstraint(Sketcher.Constraint("DistanceY", 31, 3, -1, 1, 31.666397))
sketch2.addConstraint(Sketcher.Constraint("DistanceY", 34, 3, -1, 1, 34.292088))
sketch2.addConstraint(Sketcher.Constraint("DistanceX", -1, 1, 35, 3, 68.786535))
sketch2.addConstraint(Sketcher.Constraint("DistanceX", -1, 1, 36, 3, 82.102537))
sketch2.addConstraint(Sketcher.Constraint("DistanceX", -1, 1, 37, 3, 81.446114))
sketch2.addConstraint(Sketcher.Constraint("DistanceY", -1, 1, 37, 3, 3.030228))
sketch2.addConstraint(Sketcher.Constraint("DistanceY", -1, 1, 38, 3, 17.096427))
sketch2.addConstraint(Sketcher.Constraint("DistanceX", 41, 3, -1, 1, 35.761406))
sketch2.addConstraint(Sketcher.Constraint("DistanceX", 42, 3, -1, 1, 35.711982))
sketch2.addConstraint(Sketcher.Constraint("DistanceY", 42, 3, -1, 1, 0.263734))
sketch2.addConstraint(Sketcher.Constraint("DistanceX", 43, 3, -1, 1, 28.020368))
sketch2.addConstraint(Sketcher.Constraint("DistanceY", 44, 3, -1, 1, 30.745206))
sketch2.addConstraint(Sketcher.Constraint("DistanceX", 45, 3, -1, 1, 57.388792))
sketch2.addConstraint(Sketcher.Constraint("DistanceY", -1, 1, 46, 3, 13.444166))
sketch2.addConstraint(Sketcher.Constraint("DistanceY", -1, 1, 48, 3, 6.578437))
sketch2.addConstraint(Sketcher.Constraint("DistanceY", 49, 3, -1, 1, 7.881144))
sketch2.addConstraint(Sketcher.Constraint("DistanceY", -1, 1, 50, 3, 15.199806))
sketch2.addConstraint(Sketcher.Constraint("DistanceY", 51, 3, -1, 1, 14.633105))
sketch2.addConstraint(Sketcher.Constraint("DistanceX", 54, 3, -1, 1, 29.884013))
sketch2.addConstraint(Sketcher.Constraint("DistanceX", 55, 3, -1, 1, 19.475026))
sketch2.addConstraint(Sketcher.Constraint("DistanceX", 57, 3, -1, 1, 65.143286))
sketch2.addConstraint(Sketcher.Constraint("DistanceX", 59, 3, -1, 1, 74.802077))
sketch2.addConstraint(Sketcher.Constraint("DistanceX", 60, 3, -1, 1, 42.637367))
sketch2.addConstraint(Sketcher.Constraint("DistanceY", -1, 1, 60, 3, 5.318595))
sketch2.addConstraint(Sketcher.Constraint("DistanceY", -1, 1, 62, 3, 24.448626))
sketch2.addConstraint(Sketcher.Constraint("DistanceY", 64, 3, -1, 1, 31.628622))
sketch2.addConstraint(Sketcher.Constraint("DistanceY", 65, 3, -1, 1, 40.724765))
sketch2.addConstraint(Sketcher.Constraint("DistanceY", 66, 3, -1, 1, 18.406395))
sketch2.addConstraint(Sketcher.Constraint("DistanceX", 67, 3, -1, 1, 53.388792))
sketch2.addConstraint(Sketcher.Constraint("DistanceY", 67, 3, -1, 1, 34.254313))
sketch2.addConstraint(Sketcher.Constraint("DistanceX", 68, 3, -1, 1, 31.384408))
sketch2.addConstraint(Sketcher.Constraint("DistanceX", 69, 3, -1, 1, 18.068406))
sketch2.addConstraint(Sketcher.Constraint("DistanceY", 69, 3, -1, 1, 18.633105))
sketch2.addConstraint(Sketcher.Constraint("DistanceY", -1, 1, 70, 3, 3.068003))
sketch2.addConstraint(Sketcher.Constraint("DistanceX", 71, 3, -1, 1, 32.509704))
sketch2.addConstraint(Sketcher.Constraint("DistanceY", -1, 1, 71, 3, 17.134202))
pocket1 = body.newObject("PartDesign::Pocket", "Pocket")
pocket1.Profile = sketch2
pocket1.Length = 3
pocket1.Reversed = True

doc.recompute()
